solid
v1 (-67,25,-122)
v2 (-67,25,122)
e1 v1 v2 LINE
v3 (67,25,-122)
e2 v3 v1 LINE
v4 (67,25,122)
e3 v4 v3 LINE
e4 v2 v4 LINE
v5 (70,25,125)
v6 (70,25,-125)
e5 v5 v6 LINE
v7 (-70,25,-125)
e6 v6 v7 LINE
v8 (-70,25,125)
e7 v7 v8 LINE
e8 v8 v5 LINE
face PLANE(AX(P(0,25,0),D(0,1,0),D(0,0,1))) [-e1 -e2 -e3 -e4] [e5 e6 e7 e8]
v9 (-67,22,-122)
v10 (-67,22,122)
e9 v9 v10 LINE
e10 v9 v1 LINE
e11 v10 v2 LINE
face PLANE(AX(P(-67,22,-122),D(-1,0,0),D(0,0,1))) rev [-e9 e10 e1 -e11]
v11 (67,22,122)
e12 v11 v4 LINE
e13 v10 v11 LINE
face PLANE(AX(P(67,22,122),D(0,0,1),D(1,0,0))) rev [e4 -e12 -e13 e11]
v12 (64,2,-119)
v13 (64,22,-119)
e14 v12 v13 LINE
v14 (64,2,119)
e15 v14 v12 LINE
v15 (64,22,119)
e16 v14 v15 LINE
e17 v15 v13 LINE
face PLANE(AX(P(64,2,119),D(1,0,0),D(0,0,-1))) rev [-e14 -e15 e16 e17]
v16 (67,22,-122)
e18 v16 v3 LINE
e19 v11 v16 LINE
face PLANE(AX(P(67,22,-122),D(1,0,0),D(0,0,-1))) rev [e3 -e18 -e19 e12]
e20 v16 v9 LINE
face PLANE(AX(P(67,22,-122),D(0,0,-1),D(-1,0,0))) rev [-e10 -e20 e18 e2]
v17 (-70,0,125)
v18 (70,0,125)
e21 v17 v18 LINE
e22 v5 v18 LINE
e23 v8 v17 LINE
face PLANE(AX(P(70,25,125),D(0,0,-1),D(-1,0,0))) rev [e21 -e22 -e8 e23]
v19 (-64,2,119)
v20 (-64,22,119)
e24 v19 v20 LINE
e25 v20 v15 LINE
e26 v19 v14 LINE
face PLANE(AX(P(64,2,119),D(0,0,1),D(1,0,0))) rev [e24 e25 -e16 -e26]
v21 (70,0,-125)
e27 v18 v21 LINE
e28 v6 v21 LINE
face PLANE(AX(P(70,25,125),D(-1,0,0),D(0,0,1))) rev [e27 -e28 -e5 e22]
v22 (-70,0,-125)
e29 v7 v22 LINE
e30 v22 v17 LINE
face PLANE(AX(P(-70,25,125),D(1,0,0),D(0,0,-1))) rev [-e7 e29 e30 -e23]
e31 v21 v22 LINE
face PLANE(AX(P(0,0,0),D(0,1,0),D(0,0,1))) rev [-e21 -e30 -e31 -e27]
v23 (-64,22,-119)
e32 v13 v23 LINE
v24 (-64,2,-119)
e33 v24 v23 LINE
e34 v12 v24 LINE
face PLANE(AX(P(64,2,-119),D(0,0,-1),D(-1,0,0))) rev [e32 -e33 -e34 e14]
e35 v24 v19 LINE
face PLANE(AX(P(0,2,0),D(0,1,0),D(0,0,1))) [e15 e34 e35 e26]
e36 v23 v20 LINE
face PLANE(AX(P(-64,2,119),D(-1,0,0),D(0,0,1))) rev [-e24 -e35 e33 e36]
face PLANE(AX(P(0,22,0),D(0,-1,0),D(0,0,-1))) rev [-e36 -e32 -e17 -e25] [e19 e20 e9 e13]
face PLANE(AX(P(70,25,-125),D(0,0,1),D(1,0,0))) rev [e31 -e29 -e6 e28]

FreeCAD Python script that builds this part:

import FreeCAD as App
import Part
import Sketcher
Q = App.Units.Quantity

doc = App.newDocument("Part")
params = doc.addObject("Spreadsheet::Sheet", "Params")
for row, (alias, value) in enumerate([
    ("sketch1_width", "140 mm"),
    ("sketch1_height", "250 mm"),
    ("pad1_length", "25 mm"),
    ("sketch2_width", "128 mm"),
    ("sketch2_height", "238 mm"),
    ("pocket1_length", "23 mm"),
    ("sketch3_width", "134 mm"),
    ("sketch3_height", "244 mm"),
    ("pocket2_length", "3 mm"),
], start=1):
    params.set(f"A{row}", alias)
    params.set(f"B{row}", "=" + value)
    params.setAlias(f"B{row}", alias)

body = doc.addObject("PartDesign::Body", "Body")

# Sketch on XZ plane
sketch1 = body.newObject("Sketcher::SketchObject", "Sketch")
sketch1.AttachmentSupport = (doc.getObject("XZ_Plane"), [""])
sketch1.MapMode = "FlatFace"
sketch1.addGeometry([
    Part.LineSegment(App.Vector(-70, -125, 0), App.Vector(-70, 125, 0)),
    Part.LineSegment(App.Vector(-70, 125, 0), App.Vector(70, 125, 0)),
    Part.LineSegment(App.Vector(70, 125, 0), App.Vector(70, -125, 0)),
    Part.LineSegment(App.Vector(70, -125, 0), App.Vector(-70, -125, 0)),
], False)
sketch1.addConstraint([
    Sketcher.Constraint("Coincident", 0, 2, 1, 1),
    Sketcher.Constraint("Coincident", 1, 2, 2, 1),
    Sketcher.Constraint("Coincident", 2, 2, 3, 1),
    Sketcher.Constraint("Coincident", 3, 2, 0, 1),
    Sketcher.Constraint("Vertical", 0),
    Sketcher.Constraint("Horizontal", 1),
    Sketcher.Constraint("Vertical", 2),
    Sketcher.Constraint("Horizontal", 3),
    Sketcher.Constraint("Symmetric", 0, 2, 2, 2, -1, 1),
    Sketcher.Constraint("DistanceX", 1, 1, 1, 2, Q("140 mm")),
    Sketcher.Constraint("DistanceY", 0, 1, 0, 2, Q("250 mm")),
])
sketch1.setExpression("Constraints[9]", "Params.sketch1_width")
sketch1.setExpression("Constraints[10]", "Params.sketch1_height")
pad1 = body.newObject("PartDesign::Pad", "Pad")
pad1.Profile = sketch1
pad1.setExpression("Length", "Params.pad1_length")
pad1.Reversed = True

# Sketch on XZ plane
sketch2 = body.newObject("Sketcher::SketchObject", "Sketch001")
sketch2.AttachmentSupport = (doc.getObject("XZ_Plane"), [""])
sketch2.MapMode = "FlatFace"
sketch2.AttachmentOffset = App.Placement(App.Vector(0, 0, -25), App.Rotation())
sketch2.addGeometry([
    Part.LineSegment(App.Vector(-64, -119, 0), App.Vector(-64, 119, 0)),
    Part.LineSegment(App.Vector(-64, 119, 0), App.Vector(64, 119, 0)),
    Part.LineSegment(App.Vector(64, 119, 0), App.Vector(64, -119, 0)),
    Part.LineSegment(App.Vector(64, -119, 0), App.Vector(-64, -119, 0)),
], False)
sketch2.addConstraint([
    Sketcher.Constraint("Coincident", 0, 2, 1, 1),
    Sketcher.Constraint("Coincident", 1, 2, 2, 1),
    Sketcher.Constraint("Coincident", 2, 2, 3, 1),
    Sketcher.Constraint("Coincident", 3, 2, 0, 1),
    Sketcher.Constraint("Vertical", 0),
    Sketcher.Constraint("Horizontal", 1),
    Sketcher.Constraint("Vertical", 2),
    Sketcher.Constraint("Horizontal", 3),
    Sketcher.Constraint("Symmetric", 0, 2, 2, 2, -1, 1),
    Sketcher.Constraint("DistanceX", 1, 1, 1, 2, Q("128 mm")),
    Sketcher.Constraint("DistanceY", 0, 1, 0, 2, Q("238 mm")),
])
sketch2.setExpression("Constraints[9]", "Params.sketch2_width")
sketch2.setExpression("Constraints[10]", "Params.sketch2_height")
pocket1 = body.newObject("PartDesign::Pocket", "Pocket")
pocket1.Profile = sketch2
pocket1.setExpression("Length", "Params.pocket1_length")
pocket1.Reversed = True

# Sketch on XZ plane
sketch3 = body.newObject("Sketcher::SketchObject", "Sketch002")
sketch3.AttachmentSupport = (doc.getObject("XZ_Plane"), [""])
sketch3.MapMode = "FlatFace"
sketch3.AttachmentOffset = App.Placement(App.Vector(0, 0, -25), App.Rotation())
sketch3.addGeometry([
    Part.LineSegment(App.Vector(-67, -122, 0), App.Vector(-67, 122, 0)),
    Part.LineSegment(App.Vector(-67, 122, 0), App.Vector(67, 122, 0)),
    Part.LineSegment(App.Vector(67, 122, 0), App.Vector(67, -122, 0)),
    Part.LineSegment(App.Vector(67, -122, 0), App.Vector(-67, -122, 0)),
], False)
sketch3.addConstraint([
    Sketcher.Constraint("Coincident", 0, 2, 1, 1),
    Sketcher.Constraint("Coincident", 1, 2, 2, 1),
    Sketcher.Constraint("Coincident", 2, 2, 3, 1),
    Sketcher.Constraint("Coincident", 3, 2, 0, 1),
    Sketcher.Constraint("Vertical", 0),
    Sketcher.Constraint("Horizontal", 1),
    Sketcher.Constraint("Vertical", 2),
    Sketcher.Constraint("Horizontal", 3),
    Sketcher.Constraint("Symmetric", 0, 2, 2, 2, -1, 1),
    Sketcher.Constraint("DistanceX", 1, 1, 1, 2, Q("134 mm")),
    Sketcher.Constraint("DistanceY", 0, 1, 0, 2, Q("244 mm")),
])
sketch3.setExpression("Constraints[9]", "Params.sketch3_width")
sketch3.setExpression("Constraints[10]", "Params.sketch3_height")
pocket2 = body.newObject("PartDesign::Pocket", "Pocket001")
pocket2.Profile = sketch3
pocket2.setExpression("Length", "Params.pocket2_length")
pocket2.Reversed = True

doc.recompute()
